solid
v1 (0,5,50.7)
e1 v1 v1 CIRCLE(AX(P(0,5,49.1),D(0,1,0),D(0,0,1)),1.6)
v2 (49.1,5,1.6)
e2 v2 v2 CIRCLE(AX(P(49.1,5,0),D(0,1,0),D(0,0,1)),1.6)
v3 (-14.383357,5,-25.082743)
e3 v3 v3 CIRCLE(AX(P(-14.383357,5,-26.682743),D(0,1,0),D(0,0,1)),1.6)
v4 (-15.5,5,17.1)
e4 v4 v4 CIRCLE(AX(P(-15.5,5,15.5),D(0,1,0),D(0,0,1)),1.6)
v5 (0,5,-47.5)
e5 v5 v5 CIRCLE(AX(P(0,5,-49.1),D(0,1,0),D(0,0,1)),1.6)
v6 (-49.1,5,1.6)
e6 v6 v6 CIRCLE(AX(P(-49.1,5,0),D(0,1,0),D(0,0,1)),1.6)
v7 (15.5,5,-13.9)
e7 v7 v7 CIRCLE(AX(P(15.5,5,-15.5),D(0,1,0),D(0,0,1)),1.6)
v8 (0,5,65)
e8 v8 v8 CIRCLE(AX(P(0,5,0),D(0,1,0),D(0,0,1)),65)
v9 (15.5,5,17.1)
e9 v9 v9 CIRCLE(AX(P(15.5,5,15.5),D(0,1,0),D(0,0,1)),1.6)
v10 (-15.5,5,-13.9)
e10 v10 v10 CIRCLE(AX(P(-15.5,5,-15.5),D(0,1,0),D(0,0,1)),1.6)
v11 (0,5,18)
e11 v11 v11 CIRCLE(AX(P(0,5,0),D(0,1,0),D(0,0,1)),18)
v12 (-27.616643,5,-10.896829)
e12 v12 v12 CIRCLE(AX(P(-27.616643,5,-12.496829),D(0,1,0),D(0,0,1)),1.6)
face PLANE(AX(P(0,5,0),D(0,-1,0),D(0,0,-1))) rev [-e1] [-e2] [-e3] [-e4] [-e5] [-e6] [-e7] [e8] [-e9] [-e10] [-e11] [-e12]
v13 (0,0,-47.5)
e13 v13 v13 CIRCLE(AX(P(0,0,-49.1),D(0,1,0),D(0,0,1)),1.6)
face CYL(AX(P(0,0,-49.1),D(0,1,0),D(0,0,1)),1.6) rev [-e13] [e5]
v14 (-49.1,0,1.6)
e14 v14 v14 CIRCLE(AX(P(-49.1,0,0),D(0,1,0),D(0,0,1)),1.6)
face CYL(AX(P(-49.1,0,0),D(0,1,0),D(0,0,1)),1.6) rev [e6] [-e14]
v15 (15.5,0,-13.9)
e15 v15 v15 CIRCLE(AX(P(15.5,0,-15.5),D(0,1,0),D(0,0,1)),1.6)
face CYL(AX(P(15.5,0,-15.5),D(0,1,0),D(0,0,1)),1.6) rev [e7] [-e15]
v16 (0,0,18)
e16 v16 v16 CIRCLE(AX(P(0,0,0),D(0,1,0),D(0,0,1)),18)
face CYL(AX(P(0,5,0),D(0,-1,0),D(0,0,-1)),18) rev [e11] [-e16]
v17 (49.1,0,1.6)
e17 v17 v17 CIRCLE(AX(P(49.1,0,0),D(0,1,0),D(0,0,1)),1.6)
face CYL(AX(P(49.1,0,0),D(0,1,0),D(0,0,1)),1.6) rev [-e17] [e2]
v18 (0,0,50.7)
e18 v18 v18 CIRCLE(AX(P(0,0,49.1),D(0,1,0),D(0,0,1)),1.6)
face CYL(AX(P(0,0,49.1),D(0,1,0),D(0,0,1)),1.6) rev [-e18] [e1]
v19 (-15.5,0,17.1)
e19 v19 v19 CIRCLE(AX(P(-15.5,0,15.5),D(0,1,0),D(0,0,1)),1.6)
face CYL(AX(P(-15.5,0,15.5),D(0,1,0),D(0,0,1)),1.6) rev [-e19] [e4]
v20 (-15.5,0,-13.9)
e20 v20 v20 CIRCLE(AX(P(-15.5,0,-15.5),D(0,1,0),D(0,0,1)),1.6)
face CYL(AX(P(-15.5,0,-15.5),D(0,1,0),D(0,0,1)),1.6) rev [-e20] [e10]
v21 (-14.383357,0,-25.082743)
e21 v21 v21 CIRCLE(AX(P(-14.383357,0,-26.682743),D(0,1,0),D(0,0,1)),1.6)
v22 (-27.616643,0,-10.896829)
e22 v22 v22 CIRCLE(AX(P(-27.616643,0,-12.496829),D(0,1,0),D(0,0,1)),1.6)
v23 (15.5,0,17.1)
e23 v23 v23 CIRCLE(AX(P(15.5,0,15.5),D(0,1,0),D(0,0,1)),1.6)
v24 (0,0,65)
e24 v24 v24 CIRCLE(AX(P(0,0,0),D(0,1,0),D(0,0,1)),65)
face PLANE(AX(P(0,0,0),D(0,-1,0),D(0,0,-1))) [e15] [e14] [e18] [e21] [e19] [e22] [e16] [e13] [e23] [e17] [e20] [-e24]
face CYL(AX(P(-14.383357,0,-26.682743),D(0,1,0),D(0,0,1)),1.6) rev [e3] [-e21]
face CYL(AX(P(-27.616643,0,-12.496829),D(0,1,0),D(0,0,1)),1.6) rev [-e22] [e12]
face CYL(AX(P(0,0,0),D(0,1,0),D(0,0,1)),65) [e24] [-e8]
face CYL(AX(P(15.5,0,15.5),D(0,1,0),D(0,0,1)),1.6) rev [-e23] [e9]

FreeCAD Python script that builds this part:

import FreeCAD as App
import Part
import Sketcher


def edges_at(feature, points):
    """Names of the edges that pass closest to the given points."""
    edges = feature.Shape.Edges
    near = lambda p: min(range(len(edges)), key=lambda i: edges[i].distToShape(Part.Vertex(*p))[0])
    return sorted({f"Edge{near(p) + 1}" for p in points})


def add_polygon(sketch, points):
    """Adds a closed chain of lines whose ends are joined by coincident constraints."""
    first, n = sketch.GeometryCount, len(points)
    for a, b in zip(points, points[1:] + points[:1]):
        sketch.addGeometry(Part.LineSegment(App.Vector(*a, 0), App.Vector(*b, 0)), False)
    for i in range(n):
        sketch.addConstraint(Sketcher.Constraint("Coincident", first + i, 2, first + (i + 1) % n, 1))

doc = App.newDocument("Part")
body = doc.addObject("PartDesign::Body", "Body")

# Sketch on XZ plane
sketch1 = body.newObject("Sketcher::SketchObject", "Sketch")
sketch1.AttachmentSupport = (doc.getObject("XZ_Plane"), [""])
sketch1.MapMode = "FlatFace"
add_polygon(sketch1, [(-23, -23), (-23, 23), (23, 23), (23, -23)])  # lines 0-3
sketch1.addGeometry(Part.Circle(App.Vector(0, 0, 0), App.Vector(0, 0, 1), 18), False)  # 4
sketch1.addConstraint(Sketcher.Constraint("Vertical", 0))
sketch1.addConstraint(Sketcher.Constraint("Horizontal", 1))
sketch1.addConstraint(Sketcher.Constraint("Vertical", 2))
sketch1.addConstraint(Sketcher.Constraint("Horizontal", 3))
sketch1.addConstraint(Sketcher.Constraint("Coincident", 4, 3, -1, 1))
sketch1.addConstraint(Sketcher.Constraint("Symmetric", 0, 2, 2, 2, -1, 1))
sketch1.addConstraint(Sketcher.Constraint("Equal", 3, 0))
sketch1.addConstraint(Sketcher.Constraint("Diameter", 4, 36.0))
sketch1.addConstraint(Sketcher.Constraint("DistanceX", 1, 1, 1, 2, 46.0))
pad1 = body.newObject("PartDesign::Pad", "Pad")
pad1.Profile = sketch1
pad1.Length = 5
pad1.Reversed = True
doc.recompute()

fillet = body.newObject("PartDesign::Fillet", "Fillet")
fillet.Base = (pad1, edges_at(pad1, [
    (23, 2.5, 23),
    (-23, 2.5, 23),
    (-23, 2.5, -23),
    (23, 2.5, -23),
]))
fillet.Radius = 5.5

# Sketch on XZ plane
sketch2 = body.newObject("Sketcher::SketchObject", "Sketch001")
sketch2.AttachmentSupport = (doc.getObject("XZ_Plane"), [""])
sketch2.MapMode = "FlatFace"
sketch2.AttachmentOffset = App.Placement(App.Vector(0, 0, -5), App.Rotation())
sketch2.addGeometry(Part.Circle(App.Vector(-15.5, -15.5, 0), App.Vector(0, 0, 1), 1.6), False)
sketch2.addGeometry(Part.Circle(App.Vector(15.5, -15.5, 0), App.Vector(0, 0, 1), 1.6), False)
sketch2.addGeometry(Part.Circle(App.Vector(-15.5, 15.5, 0), App.Vector(0, 0, 1), 1.6), False)
sketch2.addGeometry(Part.Circle(App.Vector(15.5, 15.5, 0), App.Vector(0, 0, 1), 1.6), False)
sketch2.addConstraint(Sketcher.Constraint("Equal", 0, 1))
sketch2.addConstraint(Sketcher.Constraint("Equal", 1, 2))
sketch2.addConstraint(Sketcher.Constraint("Equal", 2, 3))
sketch2.addConstraint(Sketcher.Constraint("Symmetric", 1, 3, 2, 3, -1, 1))
sketch2.addConstraint(Sketcher.Constraint("Symmetric", 0, 3, 3, 3, -1, 1))
sketch2.addConstraint(Sketcher.Constraint("Symmetric", 0, 3, 1, 3, -2))
sketch2.addConstraint(Sketcher.Constraint("Diameter", 0, 3.2))
sketch2.addConstraint(Sketcher.Constraint("DistanceX", 0, 3, 1, 3, 31.0))
sketch2.addConstraint(Sketcher.Constraint("DistanceY", 0, 3, 2, 3, 31.0))
pocket1 = body.newObject("PartDesign::Pocket", "Pocket")
pocket1.Profile = sketch2
pocket1.Type = "ThroughAll"
pocket1.Reversed = True

# Sketch on XZ plane
sketch3 = body.newObject("Sketcher::SketchObject", "Sketch002")
sketch3.AttachmentSupport = (doc.getObject("XZ_Plane"), [""])
sketch3.MapMode = "FlatFace"
sketch3.AttachmentOffset = App.Placement(App.Vector(0, 0, -5), App.Rotation())
sketch3.addGeometry(Part.Circle(App.Vector(0, 0, 0), App.Vector(0, 0, 1), 65), False)
sketch3.addGeometry(Part.Circle(App.Vector(0, -49.1, 0), App.Vector(0, 0, 1), 1.6), False)
sketch3.addGeometry(Part.Circle(App.Vector(-49.1, 0, 0), App.Vector(0, 0, 1), 1.6), False)
sketch3.addGeometry(Part.Circle(App.Vector(49.1, 0, 0), App.Vector(0, 0, 1), 1.6), False)
sketch3.addGeometry(Part.Circle(App.Vector(0, 49.1, 0), App.Vector(0, 0, 1), 1.6), False)
sketch3.addGeometry(Part.Circle(App.Vector(-15.5, 15.5, 0), App.Vector(0, 0, 1), 1.6), False)
sketch3.addGeometry(Part.Circle(App.Vector(-15.5, -15.5, 0), App.Vector(0, 0, 1), 1.6), False)
sketch3.addGeometry(Part.Circle(App.Vector(15.5, -15.5, 0), App.Vector(0, 0, 1), 1.6), False)
sketch3.addGeometry(Part.Circle(App.Vector(15.5, 15.5, 0), App.Vector(0, 0, 1), 1.6), False)
sketch3.addGeometry(Part.Circle(App.Vector(0, 0, 0), App.Vector(0, 0, 1), 18), False)
sketch3.addConstraint(Sketcher.Constraint("Coincident", 0, 3, -1, 1))
sketch3.addConstraint(Sketcher.Constraint("Coincident", 9, 3, -1, 1))
sketch3.addConstraint(Sketcher.Constraint("Equal", 1, 2))
sketch3.addConstraint(Sketcher.Constraint("Equal", 2, 3))
sketch3.addConstraint(Sketcher.Constraint("Equal", 3, 4))
sketch3.addConstraint(Sketcher.Constraint("Equal", 4, 5))
sketch3.addConstraint(Sketcher.Constraint("Equal", 5, 6))
sketch3.addConstraint(Sketcher.Constraint("Equal", 6, 7))
sketch3.addConstraint(Sketcher.Constraint("Equal", 7, 8))
sketch3.addConstraint(Sketcher.Constraint("Symmetric", 2, 3, 3, 3, -1, 1))
sketch3.addConstraint(Sketcher.Constraint("Symmetric", 1, 3, 4, 3, -1, 1))
sketch3.addConstraint(Sketcher.Constraint("Symmetric", 5, 3, 7, 3, -1, 1))
sketch3.addConstraint(Sketcher.Constraint("Symmetric", 6, 3, 8, 3, -1, 1))
sketch3.addConstraint(Sketcher.Constraint("Symmetric", 6, 3, 7, 3, -2))
sketch3.addConstraint(Sketcher.Constraint("PointOnObject", 1, 3, -2))
sketch3.addConstraint(Sketcher.Constraint("PointOnObject", 2, 3, -1))
sketch3.addConstraint(Sketcher.Constraint("Diameter", 0, 130.0))
sketch3.addConstraint(Sketcher.Constraint("Diameter", 9, 36.0))
sketch3.addConstraint(Sketcher.Constraint("Diameter", 1, 3.2))
sketch3.addConstraint(Sketcher.Constraint("DistanceY", 6, 3, 5, 3, 31.0))
sketch3.addConstraint(Sketcher.Constraint("DistanceX", 6, 3, 7, 3, 31.0))
sketch3.addConstraint(Sketcher.Constraint("DistanceY", 1, 3, -1, 1, 49.1))
sketch3.addConstraint(Sketcher.Constraint("DistanceX", 2, 3, -1, 1, 49.1))
pad2 = body.newObject("PartDesign::Pad", "Pad001")
pad2.Profile = sketch3
pad2.Length = 5

# Sketch on XZ plane
sketch4 = body.newObject("Sketcher::SketchObject", "Sketch003")
sketch4.AttachmentSupport = (doc.getObject("XZ_Plane"), [""])
sketch4.MapMode = "FlatFace"
sketch4.AttachmentOffset = App.Placement(App.Vector(0, 0, -5), App.Rotation())
sketch4.addGeometry(Part.Circle(App.Vector(-14.4, -26.7, 0), App.Vector(0, 0, 1), 1.6), False)
sketch4.addGeometry(Part.Circle(App.Vector(-27.6, -12.5, 0), App.Vector(0, 0, 1), 1.6), False)
sketch4.addConstraint(Sketcher.Constraint("Equal", 0, 1))
sketch4.addConstraint(Sketcher.Constraint("Diameter", 0, 3.2))
sketch4.addConstraint(Sketcher.Constraint("DistanceY", 1, 3, -1, 1, 12.496829))
sketch4.addConstraint(Sketcher.Constraint("DistanceX", 0, 3, -1, 1, 14.383357))
sketch4.addConstraint(Sketcher.Constraint("DistanceY", 0, 3, -1, 1, 26.682743))
sketch4.addConstraint(Sketcher.Constraint("DistanceX", 1, 3, -1, 1, 27.616643))
pocket2 = body.newObject("PartDesign::Pocket", "Pocket001")
pocket2.Profile = sketch4
pocket2.Type = "ThroughAll"
pocket2.Reversed = True

doc.recompute()
